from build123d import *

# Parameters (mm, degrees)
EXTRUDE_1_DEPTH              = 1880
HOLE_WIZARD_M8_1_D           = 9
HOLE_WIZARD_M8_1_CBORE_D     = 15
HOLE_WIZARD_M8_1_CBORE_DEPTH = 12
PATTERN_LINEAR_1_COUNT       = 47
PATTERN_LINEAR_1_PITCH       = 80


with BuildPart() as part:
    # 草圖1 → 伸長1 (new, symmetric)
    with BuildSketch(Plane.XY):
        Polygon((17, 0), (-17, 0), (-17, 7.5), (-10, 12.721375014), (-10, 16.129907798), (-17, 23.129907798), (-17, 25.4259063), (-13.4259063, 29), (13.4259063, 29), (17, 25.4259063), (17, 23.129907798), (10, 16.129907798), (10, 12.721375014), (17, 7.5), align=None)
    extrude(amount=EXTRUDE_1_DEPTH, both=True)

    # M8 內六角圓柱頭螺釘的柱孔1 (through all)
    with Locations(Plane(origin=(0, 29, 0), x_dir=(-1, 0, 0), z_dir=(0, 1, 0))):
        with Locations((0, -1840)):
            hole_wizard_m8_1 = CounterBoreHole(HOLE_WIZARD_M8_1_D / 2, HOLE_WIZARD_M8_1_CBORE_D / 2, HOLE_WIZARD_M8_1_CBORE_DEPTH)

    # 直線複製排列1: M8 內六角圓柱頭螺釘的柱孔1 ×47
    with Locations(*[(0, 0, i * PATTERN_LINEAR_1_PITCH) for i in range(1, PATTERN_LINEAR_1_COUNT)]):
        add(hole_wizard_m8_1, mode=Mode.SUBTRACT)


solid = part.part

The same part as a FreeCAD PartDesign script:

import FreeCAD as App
import Part
import Sketcher
from FreeCAD import Vector
Q = App.Units.Quantity

doc = App.newDocument("Part")
body = doc.addObject("PartDesign::Body", "Body")

# Sketch on XY plane
sketch1 = body.newObject("Sketcher::SketchObject", "Sketch")
sketch1.AttachmentSupport = (doc.getObject("XY_Plane"), [""])
sketch1.MapMode = "FlatFace"
sketch1.addGeometry([
    Part.LineSegment(Vector(-17, 0, 0), Vector(17, 0, 0)),  # 0
    Part.LineSegment(Vector(17, 0, 0), Vector(17, 7.5, 0)),  # 1
    Part.LineSegment(Vector(17, 7.5, 0), Vector(10, 12.721375, 0)),  # 2
    Part.LineSegment(Vector(10, 12.721375, 0), Vector(10, 16.129908, 0)),  # 3
    Part.LineSegment(Vector(10, 16.129908, 0), Vector(17, 23.129908, 0)),  # 4
    Part.LineSegment(Vector(17, 23.129908, 0), Vector(17, 25.425906, 0)),  # 5
    Part.LineSegment(Vector(17, 25.425906, 0), Vector(13.425906, 29, 0)),  # 6
    Part.LineSegment(Vector(13.425906, 29, 0), Vector(-13.425906, 29, 0)),  # 7
    Part.LineSegment(Vector(-13.425906, 29, 0), Vector(-17, 25.425906, 0)),  # 8
    Part.LineSegment(Vector(-17, 25.425906, 0), Vector(-17, 23.129908, 0)),  # 9
    Part.LineSegment(Vector(-17, 23.129908, 0), Vector(-10, 16.129908, 0)),  # 10
    Part.LineSegment(Vector(-10, 16.129908, 0), Vector(-10, 12.721375, 0)),  # 11
    Part.LineSegment(Vector(-10, 12.721375, 0), Vector(-17, 7.5, 0)),  # 12
    Part.LineSegment(Vector(-17, 7.5, 0), Vector(-17, 0, 0)),  # 13
], False)
sketch1.addConstraint([
    Sketcher.Constraint("Coincident", 0, 2, 1, 1),
    Sketcher.Constraint("Coincident", 1, 2, 2, 1),
    Sketcher.Constraint("Coincident", 2, 2, 3, 1),
    Sketcher.Constraint("Coincident", 3, 2, 4, 1),
    Sketcher.Constraint("Coincident", 4, 2, 5, 1),
    Sketcher.Constraint("Coincident", 5, 2, 6, 1),
    Sketcher.Constraint("Coincident", 6, 2, 7, 1),
    Sketcher.Constraint("Coincident", 7, 2, 8, 1),
    Sketcher.Constraint("Coincident", 8, 2, 9, 1),
    Sketcher.Constraint("Coincident", 9, 2, 10, 1),
    Sketcher.Constraint("Coincident", 10, 2, 11, 1),
    Sketcher.Constraint("Coincident", 11, 2, 12, 1),
    Sketcher.Constraint("Coincident", 12, 2, 13, 1),
    Sketcher.Constraint("Coincident", 13, 2, 0, 1),
    Sketcher.Constraint("Horizontal", 0),
    Sketcher.Constraint("Vertical", 1),
    Sketcher.Constraint("Vertical", 3),
    Sketcher.Constraint("Vertical", 5),
    Sketcher.Constraint("Horizontal", 7),
    Sketcher.Constraint("Vertical", 9),
    Sketcher.Constraint("Vertical", 11),
    Sketcher.Constraint("Vertical", 13),
    Sketcher.Constraint("Symmetric", 0, 2, 13, 2, -1, 1),
    Sketcher.Constraint("Symmetric", 5, 2, 8, 2, -2),
    Sketcher.Constraint("Symmetric", 3, 2, 10, 2, -2),
    Sketcher.Constraint("Perpendicular", 4, 6),
    Sketcher.Constraint("Perpendicular", 6, 8),
    Sketcher.Constraint("Perpendicular", 8, 10),
    Sketcher.Constraint("Horizontal", 4, 2, 9, 2),
    Sketcher.Constraint("Horizontal", 2, 2, 11, 2),
    Sketcher.Constraint("Horizontal", 1, 2, 12, 2),
    Sketcher.Constraint("Vertical", 1, 2, 4, 2),
    Sketcher.Constraint("DistanceX", 0, 1, 0, 2, Q("34 mm")),
    Sketcher.Constraint("DistanceY", 1, 1, 1, 2, Q("7.5 mm")),
    Sketcher.Constraint("DistanceX", -1, 1, 2, 2, Q("10 mm")),
    Sketcher.Constraint("DistanceY", -1, 1, 6, 2, Q("29 mm")),
    Sketcher.Constraint("DistanceY", 5, 1, 5, 2, Q("2.295999 mm")),
    Sketcher.Constraint("Distance", 6, Q("5.054532 mm")),
    Sketcher.Constraint("DistanceY", 3, 1, 3, 2, Q("3.408533 mm")),
])
pad1 = body.newObject("PartDesign::Pad", "Pad")
pad1.Profile = sketch1
pad1.Length = 3760
pad1.Midplane = True

# Sketch on XZ plane
sketch2 = body.newObject("Sketcher::SketchObject", "Sketch001")
sketch2.AttachmentSupport = (doc.getObject("XZ_Plane"), [""])
sketch2.MapMode = "FlatFace"
sketch2.AttachmentOffset = App.Placement(Vector(0, 0, -29), App.Rotation())
sketch2.addGeometry(Part.Circle(Vector(0, -1840, 0), Vector(0, 0, 1), 4.5), False)
sketch2.addConstraint([
    Sketcher.Constraint("PointOnObject", 0, 3, -2),
    Sketcher.Constraint("Diameter", 0, Q("9 mm")),
    Sketcher.Constraint("DistanceY", 0, 3, -1, 1, Q("1840 mm")),
])
doc.recompute()
hole = body.newObject("PartDesign::Hole", "Hole")
hole.Profile = sketch2
hole.ThreadType = "None"
hole.Diameter = 9
hole.DepthType = "ThroughAll"
hole.HoleCutType = "Counterbore"
hole.HoleCutDiameter = 15
hole.HoleCutDepth = 12
hole.Reversed = True
doc.recompute()

linearpattern = body.newObject("PartDesign::LinearPattern", "LinearPattern")
linearpattern.Originals = [hole]
linearpattern.Direction = (doc.getObject("Z_Axis"), [""])
linearpattern.Mode = "offset"
linearpattern.Offset = 80
linearpattern.Occurrences = 47
body.Tip = linearpattern

doc.recompute()
